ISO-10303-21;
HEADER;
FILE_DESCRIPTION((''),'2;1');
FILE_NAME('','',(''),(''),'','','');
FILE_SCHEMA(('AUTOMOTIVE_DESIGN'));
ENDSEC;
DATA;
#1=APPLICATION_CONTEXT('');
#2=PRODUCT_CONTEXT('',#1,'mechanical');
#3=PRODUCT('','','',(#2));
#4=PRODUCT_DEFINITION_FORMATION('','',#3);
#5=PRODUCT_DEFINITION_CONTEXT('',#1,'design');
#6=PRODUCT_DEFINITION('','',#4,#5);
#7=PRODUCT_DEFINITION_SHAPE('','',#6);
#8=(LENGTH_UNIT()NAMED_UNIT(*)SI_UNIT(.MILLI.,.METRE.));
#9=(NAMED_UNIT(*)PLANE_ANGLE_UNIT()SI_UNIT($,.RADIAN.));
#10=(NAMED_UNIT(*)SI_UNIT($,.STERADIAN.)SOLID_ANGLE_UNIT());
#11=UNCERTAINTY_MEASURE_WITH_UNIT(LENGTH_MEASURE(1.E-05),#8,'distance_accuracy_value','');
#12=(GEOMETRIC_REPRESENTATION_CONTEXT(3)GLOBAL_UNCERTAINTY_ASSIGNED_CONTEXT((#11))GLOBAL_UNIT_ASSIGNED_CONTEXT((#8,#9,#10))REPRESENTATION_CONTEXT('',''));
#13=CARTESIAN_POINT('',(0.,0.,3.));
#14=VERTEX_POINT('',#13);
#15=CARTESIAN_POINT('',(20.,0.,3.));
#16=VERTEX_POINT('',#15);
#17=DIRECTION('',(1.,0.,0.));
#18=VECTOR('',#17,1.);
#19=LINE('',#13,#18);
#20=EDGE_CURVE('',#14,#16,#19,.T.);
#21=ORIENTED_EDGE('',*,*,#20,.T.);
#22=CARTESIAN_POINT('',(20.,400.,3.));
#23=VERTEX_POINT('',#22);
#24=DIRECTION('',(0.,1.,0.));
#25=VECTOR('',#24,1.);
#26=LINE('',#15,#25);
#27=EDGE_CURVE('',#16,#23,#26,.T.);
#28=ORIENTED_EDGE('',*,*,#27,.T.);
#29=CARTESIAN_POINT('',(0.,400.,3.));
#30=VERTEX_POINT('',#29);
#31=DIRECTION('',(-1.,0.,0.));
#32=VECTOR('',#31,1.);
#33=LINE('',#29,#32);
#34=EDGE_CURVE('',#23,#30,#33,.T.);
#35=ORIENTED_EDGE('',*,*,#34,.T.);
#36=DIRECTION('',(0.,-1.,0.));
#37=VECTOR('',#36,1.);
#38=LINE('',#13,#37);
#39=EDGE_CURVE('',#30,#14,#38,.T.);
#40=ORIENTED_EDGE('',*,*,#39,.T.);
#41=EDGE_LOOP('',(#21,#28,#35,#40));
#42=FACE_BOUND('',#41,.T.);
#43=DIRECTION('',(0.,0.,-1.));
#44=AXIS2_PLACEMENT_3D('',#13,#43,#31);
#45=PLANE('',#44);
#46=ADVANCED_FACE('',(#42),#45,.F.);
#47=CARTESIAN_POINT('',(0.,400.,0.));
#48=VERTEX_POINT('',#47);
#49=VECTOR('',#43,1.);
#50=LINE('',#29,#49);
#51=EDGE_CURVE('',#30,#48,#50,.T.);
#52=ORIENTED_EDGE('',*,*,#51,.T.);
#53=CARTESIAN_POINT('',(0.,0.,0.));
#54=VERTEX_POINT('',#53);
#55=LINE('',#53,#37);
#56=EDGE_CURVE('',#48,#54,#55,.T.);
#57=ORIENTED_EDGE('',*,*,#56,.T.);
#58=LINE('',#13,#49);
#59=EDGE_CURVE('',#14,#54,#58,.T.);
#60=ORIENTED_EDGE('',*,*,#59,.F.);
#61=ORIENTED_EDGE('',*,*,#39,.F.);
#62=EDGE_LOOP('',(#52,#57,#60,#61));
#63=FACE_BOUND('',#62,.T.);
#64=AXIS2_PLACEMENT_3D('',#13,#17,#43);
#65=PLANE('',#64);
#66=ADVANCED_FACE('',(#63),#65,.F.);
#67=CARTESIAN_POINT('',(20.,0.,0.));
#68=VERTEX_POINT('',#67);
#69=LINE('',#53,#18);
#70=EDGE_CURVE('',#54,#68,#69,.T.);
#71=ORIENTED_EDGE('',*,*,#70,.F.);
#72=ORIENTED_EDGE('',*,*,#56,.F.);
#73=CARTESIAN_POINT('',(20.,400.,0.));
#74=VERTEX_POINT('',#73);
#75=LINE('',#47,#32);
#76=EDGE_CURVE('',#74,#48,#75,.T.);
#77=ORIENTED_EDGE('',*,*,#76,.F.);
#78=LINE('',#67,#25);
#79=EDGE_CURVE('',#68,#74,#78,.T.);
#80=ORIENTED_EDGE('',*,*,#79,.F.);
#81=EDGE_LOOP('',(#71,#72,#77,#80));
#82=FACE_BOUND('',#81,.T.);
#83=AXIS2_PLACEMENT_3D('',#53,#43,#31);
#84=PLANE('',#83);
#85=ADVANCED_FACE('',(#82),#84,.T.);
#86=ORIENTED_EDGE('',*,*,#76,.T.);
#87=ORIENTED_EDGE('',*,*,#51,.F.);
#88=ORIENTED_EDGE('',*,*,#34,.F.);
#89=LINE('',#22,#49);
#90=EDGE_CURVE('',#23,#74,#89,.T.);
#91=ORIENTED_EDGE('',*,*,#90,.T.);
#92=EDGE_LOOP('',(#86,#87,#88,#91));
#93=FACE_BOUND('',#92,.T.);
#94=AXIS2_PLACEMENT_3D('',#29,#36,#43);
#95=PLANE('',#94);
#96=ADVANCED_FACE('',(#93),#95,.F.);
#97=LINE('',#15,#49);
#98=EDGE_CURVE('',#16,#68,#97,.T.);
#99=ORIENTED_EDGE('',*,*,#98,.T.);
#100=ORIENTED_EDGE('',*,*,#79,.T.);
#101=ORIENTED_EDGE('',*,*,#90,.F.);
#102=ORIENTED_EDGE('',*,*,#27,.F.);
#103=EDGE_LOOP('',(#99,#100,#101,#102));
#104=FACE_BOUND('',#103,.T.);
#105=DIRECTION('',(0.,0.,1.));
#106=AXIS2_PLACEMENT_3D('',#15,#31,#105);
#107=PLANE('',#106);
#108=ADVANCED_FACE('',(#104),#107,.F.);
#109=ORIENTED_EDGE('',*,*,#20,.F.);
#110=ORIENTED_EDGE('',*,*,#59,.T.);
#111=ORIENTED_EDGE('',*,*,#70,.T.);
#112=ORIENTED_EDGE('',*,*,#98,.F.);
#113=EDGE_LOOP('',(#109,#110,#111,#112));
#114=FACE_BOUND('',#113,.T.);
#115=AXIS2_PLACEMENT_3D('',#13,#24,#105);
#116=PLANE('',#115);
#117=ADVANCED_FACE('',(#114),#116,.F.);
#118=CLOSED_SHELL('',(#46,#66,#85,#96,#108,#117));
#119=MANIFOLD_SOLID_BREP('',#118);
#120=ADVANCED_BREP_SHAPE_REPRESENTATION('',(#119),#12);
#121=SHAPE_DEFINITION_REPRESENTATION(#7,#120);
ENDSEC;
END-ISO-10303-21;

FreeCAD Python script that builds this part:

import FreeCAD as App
import Part
import Sketcher
Q = App.Units.Quantity


def add_polygon(sketch, points):
    """Adds a closed chain of lines whose ends are joined by coincident constraints."""
    first, n = sketch.GeometryCount, len(points)
    for a, b in zip(points, points[1:] + points[:1]):
        sketch.addGeometry(Part.LineSegment(App.Vector(*a, 0), App.Vector(*b, 0)), False)
    for i in range(n):
        sketch.addConstraint(Sketcher.Constraint("Coincident", first + i, 2, first + (i + 1) % n, 1))

doc = App.newDocument("Part")
body = doc.addObject("PartDesign::Body", "Body")

sketch1 = body.newObject("Sketcher::SketchObject", "Sketch")
sketch1.AttachmentSupport = (doc.getObject("XY_Plane"), [""])
sketch1.MapMode = "FlatFace"
add_polygon(sketch1, [(0, 400), (0, 0), (20, 0), (20, 400)])
sketch1.addConstraint([
    Sketcher.Constraint("Vertical", 0),
    Sketcher.Constraint("Horizontal", 1),
    Sketcher.Constraint("Vertical", 2),
    Sketcher.Constraint("Horizontal", 3),
    Sketcher.Constraint("Coincident", 0, 2, -1, 1),
    Sketcher.Constraint("DistanceX", 1, 1, 1, 2, Q("20 mm")),
    Sketcher.Constraint("DistanceY", 0, 2, 0, 1, Q("400 mm")),
])
pad1 = body.newObject("PartDesign::Pad", "Pad")
pad1.Profile = sketch1
pad1.Length = 3

doc.recompute()
